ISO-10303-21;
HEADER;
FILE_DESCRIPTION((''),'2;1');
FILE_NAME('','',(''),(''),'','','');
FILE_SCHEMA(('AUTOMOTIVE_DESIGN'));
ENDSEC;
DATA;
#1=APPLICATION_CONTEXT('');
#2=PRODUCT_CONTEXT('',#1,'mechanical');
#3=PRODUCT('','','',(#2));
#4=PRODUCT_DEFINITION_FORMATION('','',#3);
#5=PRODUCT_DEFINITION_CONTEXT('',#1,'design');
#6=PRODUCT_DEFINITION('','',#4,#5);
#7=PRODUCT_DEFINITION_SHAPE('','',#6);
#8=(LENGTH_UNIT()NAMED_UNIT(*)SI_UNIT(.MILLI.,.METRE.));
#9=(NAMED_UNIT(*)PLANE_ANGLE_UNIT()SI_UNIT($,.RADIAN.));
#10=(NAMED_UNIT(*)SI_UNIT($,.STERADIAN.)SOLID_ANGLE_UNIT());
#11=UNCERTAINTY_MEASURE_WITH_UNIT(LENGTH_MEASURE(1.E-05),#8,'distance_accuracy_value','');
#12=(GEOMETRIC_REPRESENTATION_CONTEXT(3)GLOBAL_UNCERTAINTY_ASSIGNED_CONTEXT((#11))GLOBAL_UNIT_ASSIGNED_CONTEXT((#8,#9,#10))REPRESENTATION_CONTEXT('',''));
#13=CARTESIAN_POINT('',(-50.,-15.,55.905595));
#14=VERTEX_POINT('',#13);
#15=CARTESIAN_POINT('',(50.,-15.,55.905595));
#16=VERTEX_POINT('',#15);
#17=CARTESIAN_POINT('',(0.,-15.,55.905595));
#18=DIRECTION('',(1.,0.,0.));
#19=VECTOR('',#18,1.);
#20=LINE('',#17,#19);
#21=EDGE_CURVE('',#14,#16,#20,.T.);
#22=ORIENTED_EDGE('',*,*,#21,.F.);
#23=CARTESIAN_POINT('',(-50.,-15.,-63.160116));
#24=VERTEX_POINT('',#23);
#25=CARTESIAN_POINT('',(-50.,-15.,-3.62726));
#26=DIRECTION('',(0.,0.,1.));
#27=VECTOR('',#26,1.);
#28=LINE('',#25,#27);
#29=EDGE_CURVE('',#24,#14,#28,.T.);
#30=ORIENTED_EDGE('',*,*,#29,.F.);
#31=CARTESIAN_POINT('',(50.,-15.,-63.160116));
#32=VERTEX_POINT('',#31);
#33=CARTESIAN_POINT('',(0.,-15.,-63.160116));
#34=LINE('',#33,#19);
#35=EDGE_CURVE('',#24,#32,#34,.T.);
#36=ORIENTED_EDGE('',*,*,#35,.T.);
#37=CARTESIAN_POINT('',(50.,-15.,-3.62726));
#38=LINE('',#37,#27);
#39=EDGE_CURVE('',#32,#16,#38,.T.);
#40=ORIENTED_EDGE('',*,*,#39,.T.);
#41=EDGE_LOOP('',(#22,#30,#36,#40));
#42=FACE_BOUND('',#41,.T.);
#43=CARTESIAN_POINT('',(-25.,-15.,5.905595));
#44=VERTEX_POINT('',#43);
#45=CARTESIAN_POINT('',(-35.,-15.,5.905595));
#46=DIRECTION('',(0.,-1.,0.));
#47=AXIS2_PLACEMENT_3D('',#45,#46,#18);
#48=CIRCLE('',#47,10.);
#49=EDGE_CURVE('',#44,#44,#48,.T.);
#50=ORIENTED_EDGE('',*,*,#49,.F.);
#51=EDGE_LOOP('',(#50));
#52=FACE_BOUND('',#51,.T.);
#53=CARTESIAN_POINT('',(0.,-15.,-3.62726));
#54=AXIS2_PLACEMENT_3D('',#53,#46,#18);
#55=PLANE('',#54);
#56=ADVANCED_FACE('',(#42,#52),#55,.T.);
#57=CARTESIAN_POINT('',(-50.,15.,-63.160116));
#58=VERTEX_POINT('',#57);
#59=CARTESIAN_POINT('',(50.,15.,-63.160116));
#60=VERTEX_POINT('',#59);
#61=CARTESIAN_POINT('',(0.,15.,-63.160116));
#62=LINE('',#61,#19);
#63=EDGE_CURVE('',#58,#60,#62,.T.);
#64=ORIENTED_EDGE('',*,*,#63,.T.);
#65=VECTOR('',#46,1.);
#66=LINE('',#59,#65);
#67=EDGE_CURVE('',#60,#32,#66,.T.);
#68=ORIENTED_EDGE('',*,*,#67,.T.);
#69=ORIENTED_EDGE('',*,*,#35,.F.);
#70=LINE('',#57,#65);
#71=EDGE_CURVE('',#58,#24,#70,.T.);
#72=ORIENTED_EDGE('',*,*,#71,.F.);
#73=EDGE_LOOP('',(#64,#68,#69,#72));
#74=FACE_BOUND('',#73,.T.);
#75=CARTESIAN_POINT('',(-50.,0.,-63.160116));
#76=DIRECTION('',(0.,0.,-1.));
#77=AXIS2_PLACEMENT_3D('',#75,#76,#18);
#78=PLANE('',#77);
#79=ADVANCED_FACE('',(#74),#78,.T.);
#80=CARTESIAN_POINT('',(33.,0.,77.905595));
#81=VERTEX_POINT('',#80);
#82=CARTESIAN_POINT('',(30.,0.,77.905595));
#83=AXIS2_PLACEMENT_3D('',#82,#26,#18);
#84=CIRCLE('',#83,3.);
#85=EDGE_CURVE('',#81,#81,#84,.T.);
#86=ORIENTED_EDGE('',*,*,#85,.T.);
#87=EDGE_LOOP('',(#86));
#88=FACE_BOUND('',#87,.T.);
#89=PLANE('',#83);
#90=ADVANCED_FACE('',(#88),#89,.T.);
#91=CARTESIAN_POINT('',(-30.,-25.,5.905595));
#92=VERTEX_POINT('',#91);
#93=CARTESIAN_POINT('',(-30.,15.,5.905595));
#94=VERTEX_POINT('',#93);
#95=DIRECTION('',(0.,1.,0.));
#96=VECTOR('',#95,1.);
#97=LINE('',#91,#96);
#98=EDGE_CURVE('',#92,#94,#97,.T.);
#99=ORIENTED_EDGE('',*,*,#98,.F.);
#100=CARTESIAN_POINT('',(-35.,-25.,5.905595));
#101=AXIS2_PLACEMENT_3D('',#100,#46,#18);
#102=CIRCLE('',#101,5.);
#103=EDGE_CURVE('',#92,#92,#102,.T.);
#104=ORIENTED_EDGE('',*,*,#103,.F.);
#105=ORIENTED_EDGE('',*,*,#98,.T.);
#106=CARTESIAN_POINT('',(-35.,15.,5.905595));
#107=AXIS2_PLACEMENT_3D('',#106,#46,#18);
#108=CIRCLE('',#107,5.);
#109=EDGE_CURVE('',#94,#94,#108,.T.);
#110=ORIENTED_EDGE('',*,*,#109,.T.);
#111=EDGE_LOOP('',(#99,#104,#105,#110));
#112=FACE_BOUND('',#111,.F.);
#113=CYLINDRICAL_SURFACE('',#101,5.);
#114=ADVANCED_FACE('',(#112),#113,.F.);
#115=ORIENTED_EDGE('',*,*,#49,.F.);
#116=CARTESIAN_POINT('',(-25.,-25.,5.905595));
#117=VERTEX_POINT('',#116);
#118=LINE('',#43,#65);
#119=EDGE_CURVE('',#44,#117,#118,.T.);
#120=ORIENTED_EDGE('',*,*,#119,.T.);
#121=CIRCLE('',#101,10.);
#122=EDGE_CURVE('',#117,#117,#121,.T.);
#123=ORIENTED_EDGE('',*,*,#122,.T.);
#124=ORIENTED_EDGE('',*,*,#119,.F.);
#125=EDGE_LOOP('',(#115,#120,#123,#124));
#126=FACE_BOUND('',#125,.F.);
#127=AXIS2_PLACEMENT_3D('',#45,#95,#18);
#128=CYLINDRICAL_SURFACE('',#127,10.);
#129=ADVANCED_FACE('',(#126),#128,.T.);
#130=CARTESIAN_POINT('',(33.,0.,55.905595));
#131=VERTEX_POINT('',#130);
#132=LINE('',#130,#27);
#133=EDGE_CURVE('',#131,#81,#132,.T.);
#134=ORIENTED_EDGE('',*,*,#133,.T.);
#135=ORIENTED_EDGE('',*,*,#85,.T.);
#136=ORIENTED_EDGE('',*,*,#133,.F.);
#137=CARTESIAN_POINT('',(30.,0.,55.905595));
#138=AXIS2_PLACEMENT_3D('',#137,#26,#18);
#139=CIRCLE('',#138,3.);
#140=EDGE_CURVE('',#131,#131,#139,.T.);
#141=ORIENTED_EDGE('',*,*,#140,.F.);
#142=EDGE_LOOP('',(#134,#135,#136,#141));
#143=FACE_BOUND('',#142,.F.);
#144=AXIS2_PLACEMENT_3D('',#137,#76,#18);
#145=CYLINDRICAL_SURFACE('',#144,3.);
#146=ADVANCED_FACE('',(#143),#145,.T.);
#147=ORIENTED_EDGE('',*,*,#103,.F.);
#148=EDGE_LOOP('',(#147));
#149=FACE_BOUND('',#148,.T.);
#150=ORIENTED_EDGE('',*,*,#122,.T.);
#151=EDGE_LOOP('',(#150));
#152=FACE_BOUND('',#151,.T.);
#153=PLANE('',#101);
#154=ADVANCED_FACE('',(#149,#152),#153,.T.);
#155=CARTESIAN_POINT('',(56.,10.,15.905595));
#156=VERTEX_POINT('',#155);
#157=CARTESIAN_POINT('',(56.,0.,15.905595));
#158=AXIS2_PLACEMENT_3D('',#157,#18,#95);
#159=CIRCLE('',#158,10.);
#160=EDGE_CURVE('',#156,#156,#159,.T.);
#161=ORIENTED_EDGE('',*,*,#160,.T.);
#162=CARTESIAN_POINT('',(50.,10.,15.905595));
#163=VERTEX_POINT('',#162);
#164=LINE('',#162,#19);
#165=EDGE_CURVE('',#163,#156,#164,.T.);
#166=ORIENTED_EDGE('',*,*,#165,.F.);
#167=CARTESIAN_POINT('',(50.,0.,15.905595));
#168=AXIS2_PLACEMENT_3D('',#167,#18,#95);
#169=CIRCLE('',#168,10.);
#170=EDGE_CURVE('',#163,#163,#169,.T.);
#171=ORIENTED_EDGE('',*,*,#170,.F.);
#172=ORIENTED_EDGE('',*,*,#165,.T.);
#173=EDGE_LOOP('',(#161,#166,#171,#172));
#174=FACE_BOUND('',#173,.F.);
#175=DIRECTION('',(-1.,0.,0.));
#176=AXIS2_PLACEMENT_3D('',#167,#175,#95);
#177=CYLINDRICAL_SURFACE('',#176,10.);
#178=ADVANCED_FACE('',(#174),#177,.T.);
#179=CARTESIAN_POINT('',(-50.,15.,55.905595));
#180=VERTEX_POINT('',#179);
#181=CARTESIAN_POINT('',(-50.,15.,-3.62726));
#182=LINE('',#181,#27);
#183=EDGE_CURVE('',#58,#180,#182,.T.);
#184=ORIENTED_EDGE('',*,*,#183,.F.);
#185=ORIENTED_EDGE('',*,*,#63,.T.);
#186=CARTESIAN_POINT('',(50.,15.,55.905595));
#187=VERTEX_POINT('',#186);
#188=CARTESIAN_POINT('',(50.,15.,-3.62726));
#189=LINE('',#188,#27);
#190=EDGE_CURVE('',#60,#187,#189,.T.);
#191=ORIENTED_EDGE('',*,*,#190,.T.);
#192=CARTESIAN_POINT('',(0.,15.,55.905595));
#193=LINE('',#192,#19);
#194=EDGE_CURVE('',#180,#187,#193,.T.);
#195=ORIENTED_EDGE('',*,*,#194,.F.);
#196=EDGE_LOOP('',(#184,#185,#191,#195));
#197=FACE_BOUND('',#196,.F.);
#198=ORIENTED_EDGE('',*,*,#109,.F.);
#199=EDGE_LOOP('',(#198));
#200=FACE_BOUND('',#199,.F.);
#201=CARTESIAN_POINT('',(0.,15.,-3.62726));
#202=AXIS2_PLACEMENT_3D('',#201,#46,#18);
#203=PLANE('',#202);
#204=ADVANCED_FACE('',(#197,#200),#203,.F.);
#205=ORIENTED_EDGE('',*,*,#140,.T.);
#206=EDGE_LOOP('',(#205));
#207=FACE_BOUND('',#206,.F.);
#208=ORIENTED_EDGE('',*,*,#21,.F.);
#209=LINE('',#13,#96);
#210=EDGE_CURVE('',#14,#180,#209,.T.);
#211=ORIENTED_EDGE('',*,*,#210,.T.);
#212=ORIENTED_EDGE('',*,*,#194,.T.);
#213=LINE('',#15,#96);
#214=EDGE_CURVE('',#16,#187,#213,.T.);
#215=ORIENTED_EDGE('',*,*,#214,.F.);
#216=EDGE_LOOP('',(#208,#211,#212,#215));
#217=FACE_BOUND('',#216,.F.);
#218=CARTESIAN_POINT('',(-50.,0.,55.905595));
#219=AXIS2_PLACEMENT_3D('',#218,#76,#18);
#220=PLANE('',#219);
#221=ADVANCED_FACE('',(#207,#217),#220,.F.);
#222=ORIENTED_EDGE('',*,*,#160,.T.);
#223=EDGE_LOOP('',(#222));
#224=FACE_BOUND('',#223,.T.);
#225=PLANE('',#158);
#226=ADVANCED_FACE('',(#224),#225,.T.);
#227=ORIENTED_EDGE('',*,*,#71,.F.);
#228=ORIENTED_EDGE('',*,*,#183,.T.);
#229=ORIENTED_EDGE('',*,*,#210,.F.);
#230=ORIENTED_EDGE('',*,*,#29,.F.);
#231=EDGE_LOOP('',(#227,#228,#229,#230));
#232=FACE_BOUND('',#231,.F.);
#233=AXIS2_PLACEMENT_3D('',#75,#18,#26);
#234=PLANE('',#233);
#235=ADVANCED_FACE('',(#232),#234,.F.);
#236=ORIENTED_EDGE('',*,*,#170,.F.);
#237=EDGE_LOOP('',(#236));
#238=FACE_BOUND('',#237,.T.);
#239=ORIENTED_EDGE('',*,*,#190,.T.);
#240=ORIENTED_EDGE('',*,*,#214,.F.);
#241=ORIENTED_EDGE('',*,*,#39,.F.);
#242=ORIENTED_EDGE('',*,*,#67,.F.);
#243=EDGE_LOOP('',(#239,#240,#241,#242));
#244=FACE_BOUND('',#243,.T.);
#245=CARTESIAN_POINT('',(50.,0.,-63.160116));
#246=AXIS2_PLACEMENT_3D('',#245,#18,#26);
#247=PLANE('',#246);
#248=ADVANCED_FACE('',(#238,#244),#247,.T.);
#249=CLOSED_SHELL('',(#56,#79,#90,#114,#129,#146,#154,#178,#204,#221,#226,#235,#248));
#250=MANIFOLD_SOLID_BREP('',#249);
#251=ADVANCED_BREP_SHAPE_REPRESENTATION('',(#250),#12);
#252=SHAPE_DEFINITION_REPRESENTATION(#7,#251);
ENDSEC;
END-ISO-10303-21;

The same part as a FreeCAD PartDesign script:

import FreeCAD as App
import Part
import Sketcher

V = App.Vector


def add_polygon(sketch, points):
    """Adds a closed chain of lines whose ends are joined by coincident constraints."""
    first, n = sketch.GeometryCount, len(points)
    for a, b in zip(points, points[1:] + points[:1]):
        sketch.addGeometry(Part.LineSegment(App.Vector(*a, 0), App.Vector(*b, 0)), False)
    for i in range(n):
        sketch.addConstraint(Sketcher.Constraint("Coincident", first + i, 2, first + (i + 1) % n, 1))

doc = App.newDocument("Part")
body = doc.addObject("PartDesign::Body", "Body")

sketch1 = body.newObject("Sketcher::SketchObject", "Sketch")
sketch1.AttachmentSupport = (doc.getObject("XZ_Plane"), [""])
sketch1.MapMode = "FlatFace"
add_polygon(sketch1, [(-50, 56), (-50, -63), (50, -63), (50, 56)])
sketch1.addConstraint([
    Sketcher.Constraint("Vertical", 0),
    Sketcher.Constraint("Horizontal", 1),
    Sketcher.Constraint("Vertical", 2),
    Sketcher.Constraint("Horizontal", 3),
    Sketcher.Constraint("DistanceX", 1, 1, 1, 2, 100.0),
    Sketcher.Constraint("DistanceX", 0, 2, -1, 1, 50.0),
    Sketcher.Constraint("DistanceY", 0, 2, 0, 1, 119.065711),
    Sketcher.Constraint("DistanceY", 0, 2, -1, 1, 63.160116),
])
pad1 = body.newObject("PartDesign::Pad", "Pad")
pad1.Profile = sketch1
pad1.Length = 30
pad1.Midplane = True

sketch2 = body.newObject("Sketcher::SketchObject", "Sketch001")
sketch2.AttachmentSupport = (doc.getObject("XZ_Plane"), [""])
sketch2.MapMode = "FlatFace"
sketch2.AttachmentOffset = App.Placement(V(0, 0, 15), App.Rotation())
sketch2.addGeometry(Part.Circle(V(-35, 6, 0), V(0, 0, 1), 10), False)
sketch2.addConstraint([
    Sketcher.Constraint("Diameter", 0, 20.0),
    Sketcher.Constraint("DistanceX", 0, 3, -1, 1, 35.0),
    Sketcher.Constraint("DistanceY", -1, 1, 0, 3, 5.905595),
])
pad2 = body.newObject("PartDesign::Pad", "Pad001")
pad2.Profile = sketch2
pad2.Length = 10

sketch3 = body.newObject("Sketcher::SketchObject", "Sketch002")
sketch3.AttachmentSupport = (doc.getObject("YZ_Plane"), [""])
sketch3.MapMode = "FlatFace"
sketch3.AttachmentOffset = App.Placement(V(0, 0, 50), App.Rotation())
sketch3.addGeometry(Part.Circle(V(0, 16, 0), V(0, 0, 1), 10), False)
sketch3.addConstraint([
    Sketcher.Constraint("PointOnObject", 0, 3, -2),
    Sketcher.Constraint("Diameter", 0, 20.0),
    Sketcher.Constraint("DistanceY", -1, 1, 0, 3, 15.905595),
])
pad3 = body.newObject("PartDesign::Pad", "Pad002")
pad3.Profile = sketch3
pad3.Length = 6

sketch4 = body.newObject("Sketcher::SketchObject", "Sketch003")
sketch4.AttachmentSupport = (doc.getObject("XY_Plane"), [""])
sketch4.MapMode = "FlatFace"
sketch4.AttachmentOffset = App.Placement(V(0, 0, 55.905595), App.Rotation())
sketch4.addGeometry(Part.Circle(V(30, 0, 0), V(0, 0, 1), 3), False)
sketch4.addConstraint([
    Sketcher.Constraint("PointOnObject", 0, 3, -1),
    Sketcher.Constraint("Diameter", 0, 6.0),
    Sketcher.Constraint("DistanceX", -1, 1, 0, 3, 30.0),
])
pad4 = body.newObject("PartDesign::Pad", "Pad003")
pad4.Profile = sketch4
pad4.Length = 22

sketch5 = body.newObject("Sketcher::SketchObject", "Sketch004")
sketch5.AttachmentSupport = (doc.getObject("XZ_Plane"), [""])
sketch5.MapMode = "FlatFace"
sketch5.AttachmentOffset = App.Placement(V(0, 0, 25), App.Rotation())
sketch5.addGeometry(Part.Circle(V(-35, 6, 0), V(0, 0, 1), 5), False)
sketch5.addConstraint([
    Sketcher.Constraint("Diameter", 0, 10.0),
    Sketcher.Constraint("DistanceX", 0, 3, -1, 1, 35.0),
    Sketcher.Constraint("DistanceY", -1, 1, 0, 3, 5.905595),
])
pocket1 = body.newObject("PartDesign::Pocket", "Pocket")
pocket1.Profile = sketch5
pocket1.Type = "ThroughAll"

doc.recompute()
